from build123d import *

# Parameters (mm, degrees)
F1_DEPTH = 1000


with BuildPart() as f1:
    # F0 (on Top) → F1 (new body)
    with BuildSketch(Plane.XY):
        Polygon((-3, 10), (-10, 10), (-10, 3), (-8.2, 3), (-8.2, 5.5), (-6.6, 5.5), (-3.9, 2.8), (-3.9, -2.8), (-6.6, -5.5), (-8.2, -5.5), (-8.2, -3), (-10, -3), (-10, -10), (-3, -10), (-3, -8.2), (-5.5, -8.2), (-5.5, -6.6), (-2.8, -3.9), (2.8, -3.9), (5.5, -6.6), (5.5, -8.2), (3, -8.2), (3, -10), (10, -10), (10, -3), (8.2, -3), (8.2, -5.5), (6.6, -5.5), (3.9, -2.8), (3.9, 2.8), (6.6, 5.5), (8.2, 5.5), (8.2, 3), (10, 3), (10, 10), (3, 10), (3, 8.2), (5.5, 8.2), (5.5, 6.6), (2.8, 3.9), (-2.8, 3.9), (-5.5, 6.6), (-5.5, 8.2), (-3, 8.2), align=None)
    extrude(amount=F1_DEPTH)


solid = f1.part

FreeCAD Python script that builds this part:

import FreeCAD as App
import Part
import Sketcher

V = App.Vector


def add_polygon(sketch, points):
    """Adds a closed chain of lines whose ends are joined by coincident constraints."""
    first, n = sketch.GeometryCount, len(points)
    for a, b in zip(points, points[1:] + points[:1]):
        sketch.addGeometry(Part.LineSegment(App.Vector(*a, 0), App.Vector(*b, 0)), False)
    for i in range(n):
        sketch.addConstraint(Sketcher.Constraint("Coincident", first + i, 2, first + (i + 1) % n, 1))

doc = App.newDocument("Part")
body = doc.addObject("PartDesign::Body", "Body")

# Sketch on XY plane
sketch1 = doc.addObject("Sketcher::SketchObject", "Sketch")
body.addObject(sketch1)
sketch1.AttachmentSupport = (doc.XY_Plane, [""])
sketch1.MapMode = "FlatFace"
add_polygon(sketch1, [(-3, 10), (-10, 10), (-10, 3), (-8.2, 3), (-8.2, 5.5), (-6.6, 5.5), (-3.9, 2.8), (-3.9, -2.8), (-6.6, -5.5), (-8.2, -5.5), (-8.2, -3), (-10, -3), (-10, -10), (-3, -10), (-3, -8.2), (-5.5, -8.2), (-5.5, -6.6), (-2.8, -3.9), (2.8, -3.9), (5.5, -6.6), (5.5, -8.2), (3, -8.2), (3, -10), (10, -10), (10, -3), (8.2, -3), (8.2, -5.5), (6.6, -5.5), (3.9, -2.8), (3.9, 2.8), (6.6, 5.5), (8.2, 5.5), (8.2, 3), (10, 3), (10, 10), (3, 10), (3, 8.2), (5.5, 8.2), (5.5, 6.6), (2.8, 3.9), (-2.8, 3.9), (-5.5, 6.6), (-5.5, 8.2), (-3, 8.2)])  # lines 0-43
sketch1.addConstraint([
    Sketcher.Constraint("Horizontal", 0),
    Sketcher.Constraint("Vertical", 1),
    Sketcher.Constraint("Horizontal", 2),
    Sketcher.Constraint("Vertical", 3),
    Sketcher.Constraint("Horizontal", 4),
    Sketcher.Constraint("Vertical", 6),
    Sketcher.Constraint("Horizontal", 8),
    Sketcher.Constraint("Vertical", 9),
    Sketcher.Constraint("Horizontal", 10),
    Sketcher.Constraint("Vertical", 11),
    Sketcher.Constraint("Horizontal", 12),
    Sketcher.Constraint("Vertical", 13),
    Sketcher.Constraint("Horizontal", 14),
    Sketcher.Constraint("Vertical", 15),
    Sketcher.Constraint("Horizontal", 17),
    Sketcher.Constraint("Vertical", 19),
    Sketcher.Constraint("Horizontal", 20),
    Sketcher.Constraint("Vertical", 21),
    Sketcher.Constraint("Horizontal", 22),
    Sketcher.Constraint("Vertical", 23),
    Sketcher.Constraint("Horizontal", 24),
    Sketcher.Constraint("Vertical", 25),
    Sketcher.Constraint("Horizontal", 26),
    Sketcher.Constraint("Vertical", 28),
    Sketcher.Constraint("Horizontal", 30),
    Sketcher.Constraint("Vertical", 31),
    Sketcher.Constraint("Horizontal", 32),
    Sketcher.Constraint("Vertical", 33),
    Sketcher.Constraint("Horizontal", 34),
    Sketcher.Constraint("Vertical", 35),
    Sketcher.Constraint("Horizontal", 36),
    Sketcher.Constraint("Vertical", 37),
    Sketcher.Constraint("Horizontal", 39),
    Sketcher.Constraint("Vertical", 41),
    Sketcher.Constraint("Horizontal", 42),
    Sketcher.Constraint("Vertical", 43),
    Sketcher.Constraint("Symmetric", 0, 2, 22, 2, -1, 1),
    Sketcher.Constraint("Symmetric", 2, 2, 24, 2, -1, 1),
    Sketcher.Constraint("Symmetric", 4, 2, 26, 2, -1, 1),
    Sketcher.Constraint("Symmetric", 5, 2, 27, 2, -1, 1),
    Sketcher.Constraint("Symmetric", 7, 2, 29, 2, -1, 1),
    Sketcher.Constraint("Symmetric", 9, 2, 31, 2, -1, 1),
    Sketcher.Constraint("Symmetric", 11, 2, 33, 2, -1, 1),
    Sketcher.Constraint("Symmetric", 13, 2, 35, 2, -1, 1),
    Sketcher.Constraint("Symmetric", 15, 2, 37, 2, -1, 1),
    Sketcher.Constraint("Symmetric", 16, 2, 38, 2, -1, 1),
    Sketcher.Constraint("Symmetric", 18, 2, 40, 2, -1, 1),
    Sketcher.Constraint("Symmetric", 20, 2, 42, 2, -1, 1),
    Sketcher.Constraint("Symmetric", 15, 2, 18, 2, -2),
    Sketcher.Constraint("Symmetric", 13, 2, 20, 2, -2),
    Sketcher.Constraint("Symmetric", 11, 2, 22, 2, -2),
    Sketcher.Constraint("Symmetric", 9, 2, 24, 2, -2),
    Sketcher.Constraint("Symmetric", 7, 2, 26, 2, -2),
    Sketcher.Constraint("Perpendicular", 5, 7),
    Sketcher.Constraint("Parallel", 7, 16),
    Sketcher.Constraint("Perpendicular", 16, 18),
    Sketcher.Constraint("Perpendicular", 27, 29),
    Sketcher.Constraint("Perpendicular", 38, 40),
    Sketcher.Constraint("Horizontal", 6, 2, 27, 2),
    Sketcher.Constraint("Equal", 34, 1),
    Sketcher.Constraint("Equal", 42, 3),
    Sketcher.Constraint("Equal", 39, 6),
    Sketcher.Constraint("Equal", 32, 13),
    Sketcher.Constraint("Equal", 30, 15),
    Sketcher.Constraint("Equal", 7, 16),
    Sketcher.Constraint("DistanceX", 0, 2, 0, 1, 7.0),
    Sketcher.Constraint("DistanceX", 2, 1, 2, 2, 1.8),
    Sketcher.Constraint("DistanceX", 4, 1, 4, 2, 1.6),
    Sketcher.Constraint("DistanceX", 14, 2, 14, 1, 2.5),
    Sketcher.Constraint("DistanceX", 17, 1, 17, 2, 5.6),
    Sketcher.Constraint("DistanceX", 0, 2, -1, 1, 10.0),
])
pad1 = doc.addObject("PartDesign::Pad", "Pad")
body.addObject(pad1)
pad1.Profile = sketch1
pad1.Length = 1000

doc.recompute()
